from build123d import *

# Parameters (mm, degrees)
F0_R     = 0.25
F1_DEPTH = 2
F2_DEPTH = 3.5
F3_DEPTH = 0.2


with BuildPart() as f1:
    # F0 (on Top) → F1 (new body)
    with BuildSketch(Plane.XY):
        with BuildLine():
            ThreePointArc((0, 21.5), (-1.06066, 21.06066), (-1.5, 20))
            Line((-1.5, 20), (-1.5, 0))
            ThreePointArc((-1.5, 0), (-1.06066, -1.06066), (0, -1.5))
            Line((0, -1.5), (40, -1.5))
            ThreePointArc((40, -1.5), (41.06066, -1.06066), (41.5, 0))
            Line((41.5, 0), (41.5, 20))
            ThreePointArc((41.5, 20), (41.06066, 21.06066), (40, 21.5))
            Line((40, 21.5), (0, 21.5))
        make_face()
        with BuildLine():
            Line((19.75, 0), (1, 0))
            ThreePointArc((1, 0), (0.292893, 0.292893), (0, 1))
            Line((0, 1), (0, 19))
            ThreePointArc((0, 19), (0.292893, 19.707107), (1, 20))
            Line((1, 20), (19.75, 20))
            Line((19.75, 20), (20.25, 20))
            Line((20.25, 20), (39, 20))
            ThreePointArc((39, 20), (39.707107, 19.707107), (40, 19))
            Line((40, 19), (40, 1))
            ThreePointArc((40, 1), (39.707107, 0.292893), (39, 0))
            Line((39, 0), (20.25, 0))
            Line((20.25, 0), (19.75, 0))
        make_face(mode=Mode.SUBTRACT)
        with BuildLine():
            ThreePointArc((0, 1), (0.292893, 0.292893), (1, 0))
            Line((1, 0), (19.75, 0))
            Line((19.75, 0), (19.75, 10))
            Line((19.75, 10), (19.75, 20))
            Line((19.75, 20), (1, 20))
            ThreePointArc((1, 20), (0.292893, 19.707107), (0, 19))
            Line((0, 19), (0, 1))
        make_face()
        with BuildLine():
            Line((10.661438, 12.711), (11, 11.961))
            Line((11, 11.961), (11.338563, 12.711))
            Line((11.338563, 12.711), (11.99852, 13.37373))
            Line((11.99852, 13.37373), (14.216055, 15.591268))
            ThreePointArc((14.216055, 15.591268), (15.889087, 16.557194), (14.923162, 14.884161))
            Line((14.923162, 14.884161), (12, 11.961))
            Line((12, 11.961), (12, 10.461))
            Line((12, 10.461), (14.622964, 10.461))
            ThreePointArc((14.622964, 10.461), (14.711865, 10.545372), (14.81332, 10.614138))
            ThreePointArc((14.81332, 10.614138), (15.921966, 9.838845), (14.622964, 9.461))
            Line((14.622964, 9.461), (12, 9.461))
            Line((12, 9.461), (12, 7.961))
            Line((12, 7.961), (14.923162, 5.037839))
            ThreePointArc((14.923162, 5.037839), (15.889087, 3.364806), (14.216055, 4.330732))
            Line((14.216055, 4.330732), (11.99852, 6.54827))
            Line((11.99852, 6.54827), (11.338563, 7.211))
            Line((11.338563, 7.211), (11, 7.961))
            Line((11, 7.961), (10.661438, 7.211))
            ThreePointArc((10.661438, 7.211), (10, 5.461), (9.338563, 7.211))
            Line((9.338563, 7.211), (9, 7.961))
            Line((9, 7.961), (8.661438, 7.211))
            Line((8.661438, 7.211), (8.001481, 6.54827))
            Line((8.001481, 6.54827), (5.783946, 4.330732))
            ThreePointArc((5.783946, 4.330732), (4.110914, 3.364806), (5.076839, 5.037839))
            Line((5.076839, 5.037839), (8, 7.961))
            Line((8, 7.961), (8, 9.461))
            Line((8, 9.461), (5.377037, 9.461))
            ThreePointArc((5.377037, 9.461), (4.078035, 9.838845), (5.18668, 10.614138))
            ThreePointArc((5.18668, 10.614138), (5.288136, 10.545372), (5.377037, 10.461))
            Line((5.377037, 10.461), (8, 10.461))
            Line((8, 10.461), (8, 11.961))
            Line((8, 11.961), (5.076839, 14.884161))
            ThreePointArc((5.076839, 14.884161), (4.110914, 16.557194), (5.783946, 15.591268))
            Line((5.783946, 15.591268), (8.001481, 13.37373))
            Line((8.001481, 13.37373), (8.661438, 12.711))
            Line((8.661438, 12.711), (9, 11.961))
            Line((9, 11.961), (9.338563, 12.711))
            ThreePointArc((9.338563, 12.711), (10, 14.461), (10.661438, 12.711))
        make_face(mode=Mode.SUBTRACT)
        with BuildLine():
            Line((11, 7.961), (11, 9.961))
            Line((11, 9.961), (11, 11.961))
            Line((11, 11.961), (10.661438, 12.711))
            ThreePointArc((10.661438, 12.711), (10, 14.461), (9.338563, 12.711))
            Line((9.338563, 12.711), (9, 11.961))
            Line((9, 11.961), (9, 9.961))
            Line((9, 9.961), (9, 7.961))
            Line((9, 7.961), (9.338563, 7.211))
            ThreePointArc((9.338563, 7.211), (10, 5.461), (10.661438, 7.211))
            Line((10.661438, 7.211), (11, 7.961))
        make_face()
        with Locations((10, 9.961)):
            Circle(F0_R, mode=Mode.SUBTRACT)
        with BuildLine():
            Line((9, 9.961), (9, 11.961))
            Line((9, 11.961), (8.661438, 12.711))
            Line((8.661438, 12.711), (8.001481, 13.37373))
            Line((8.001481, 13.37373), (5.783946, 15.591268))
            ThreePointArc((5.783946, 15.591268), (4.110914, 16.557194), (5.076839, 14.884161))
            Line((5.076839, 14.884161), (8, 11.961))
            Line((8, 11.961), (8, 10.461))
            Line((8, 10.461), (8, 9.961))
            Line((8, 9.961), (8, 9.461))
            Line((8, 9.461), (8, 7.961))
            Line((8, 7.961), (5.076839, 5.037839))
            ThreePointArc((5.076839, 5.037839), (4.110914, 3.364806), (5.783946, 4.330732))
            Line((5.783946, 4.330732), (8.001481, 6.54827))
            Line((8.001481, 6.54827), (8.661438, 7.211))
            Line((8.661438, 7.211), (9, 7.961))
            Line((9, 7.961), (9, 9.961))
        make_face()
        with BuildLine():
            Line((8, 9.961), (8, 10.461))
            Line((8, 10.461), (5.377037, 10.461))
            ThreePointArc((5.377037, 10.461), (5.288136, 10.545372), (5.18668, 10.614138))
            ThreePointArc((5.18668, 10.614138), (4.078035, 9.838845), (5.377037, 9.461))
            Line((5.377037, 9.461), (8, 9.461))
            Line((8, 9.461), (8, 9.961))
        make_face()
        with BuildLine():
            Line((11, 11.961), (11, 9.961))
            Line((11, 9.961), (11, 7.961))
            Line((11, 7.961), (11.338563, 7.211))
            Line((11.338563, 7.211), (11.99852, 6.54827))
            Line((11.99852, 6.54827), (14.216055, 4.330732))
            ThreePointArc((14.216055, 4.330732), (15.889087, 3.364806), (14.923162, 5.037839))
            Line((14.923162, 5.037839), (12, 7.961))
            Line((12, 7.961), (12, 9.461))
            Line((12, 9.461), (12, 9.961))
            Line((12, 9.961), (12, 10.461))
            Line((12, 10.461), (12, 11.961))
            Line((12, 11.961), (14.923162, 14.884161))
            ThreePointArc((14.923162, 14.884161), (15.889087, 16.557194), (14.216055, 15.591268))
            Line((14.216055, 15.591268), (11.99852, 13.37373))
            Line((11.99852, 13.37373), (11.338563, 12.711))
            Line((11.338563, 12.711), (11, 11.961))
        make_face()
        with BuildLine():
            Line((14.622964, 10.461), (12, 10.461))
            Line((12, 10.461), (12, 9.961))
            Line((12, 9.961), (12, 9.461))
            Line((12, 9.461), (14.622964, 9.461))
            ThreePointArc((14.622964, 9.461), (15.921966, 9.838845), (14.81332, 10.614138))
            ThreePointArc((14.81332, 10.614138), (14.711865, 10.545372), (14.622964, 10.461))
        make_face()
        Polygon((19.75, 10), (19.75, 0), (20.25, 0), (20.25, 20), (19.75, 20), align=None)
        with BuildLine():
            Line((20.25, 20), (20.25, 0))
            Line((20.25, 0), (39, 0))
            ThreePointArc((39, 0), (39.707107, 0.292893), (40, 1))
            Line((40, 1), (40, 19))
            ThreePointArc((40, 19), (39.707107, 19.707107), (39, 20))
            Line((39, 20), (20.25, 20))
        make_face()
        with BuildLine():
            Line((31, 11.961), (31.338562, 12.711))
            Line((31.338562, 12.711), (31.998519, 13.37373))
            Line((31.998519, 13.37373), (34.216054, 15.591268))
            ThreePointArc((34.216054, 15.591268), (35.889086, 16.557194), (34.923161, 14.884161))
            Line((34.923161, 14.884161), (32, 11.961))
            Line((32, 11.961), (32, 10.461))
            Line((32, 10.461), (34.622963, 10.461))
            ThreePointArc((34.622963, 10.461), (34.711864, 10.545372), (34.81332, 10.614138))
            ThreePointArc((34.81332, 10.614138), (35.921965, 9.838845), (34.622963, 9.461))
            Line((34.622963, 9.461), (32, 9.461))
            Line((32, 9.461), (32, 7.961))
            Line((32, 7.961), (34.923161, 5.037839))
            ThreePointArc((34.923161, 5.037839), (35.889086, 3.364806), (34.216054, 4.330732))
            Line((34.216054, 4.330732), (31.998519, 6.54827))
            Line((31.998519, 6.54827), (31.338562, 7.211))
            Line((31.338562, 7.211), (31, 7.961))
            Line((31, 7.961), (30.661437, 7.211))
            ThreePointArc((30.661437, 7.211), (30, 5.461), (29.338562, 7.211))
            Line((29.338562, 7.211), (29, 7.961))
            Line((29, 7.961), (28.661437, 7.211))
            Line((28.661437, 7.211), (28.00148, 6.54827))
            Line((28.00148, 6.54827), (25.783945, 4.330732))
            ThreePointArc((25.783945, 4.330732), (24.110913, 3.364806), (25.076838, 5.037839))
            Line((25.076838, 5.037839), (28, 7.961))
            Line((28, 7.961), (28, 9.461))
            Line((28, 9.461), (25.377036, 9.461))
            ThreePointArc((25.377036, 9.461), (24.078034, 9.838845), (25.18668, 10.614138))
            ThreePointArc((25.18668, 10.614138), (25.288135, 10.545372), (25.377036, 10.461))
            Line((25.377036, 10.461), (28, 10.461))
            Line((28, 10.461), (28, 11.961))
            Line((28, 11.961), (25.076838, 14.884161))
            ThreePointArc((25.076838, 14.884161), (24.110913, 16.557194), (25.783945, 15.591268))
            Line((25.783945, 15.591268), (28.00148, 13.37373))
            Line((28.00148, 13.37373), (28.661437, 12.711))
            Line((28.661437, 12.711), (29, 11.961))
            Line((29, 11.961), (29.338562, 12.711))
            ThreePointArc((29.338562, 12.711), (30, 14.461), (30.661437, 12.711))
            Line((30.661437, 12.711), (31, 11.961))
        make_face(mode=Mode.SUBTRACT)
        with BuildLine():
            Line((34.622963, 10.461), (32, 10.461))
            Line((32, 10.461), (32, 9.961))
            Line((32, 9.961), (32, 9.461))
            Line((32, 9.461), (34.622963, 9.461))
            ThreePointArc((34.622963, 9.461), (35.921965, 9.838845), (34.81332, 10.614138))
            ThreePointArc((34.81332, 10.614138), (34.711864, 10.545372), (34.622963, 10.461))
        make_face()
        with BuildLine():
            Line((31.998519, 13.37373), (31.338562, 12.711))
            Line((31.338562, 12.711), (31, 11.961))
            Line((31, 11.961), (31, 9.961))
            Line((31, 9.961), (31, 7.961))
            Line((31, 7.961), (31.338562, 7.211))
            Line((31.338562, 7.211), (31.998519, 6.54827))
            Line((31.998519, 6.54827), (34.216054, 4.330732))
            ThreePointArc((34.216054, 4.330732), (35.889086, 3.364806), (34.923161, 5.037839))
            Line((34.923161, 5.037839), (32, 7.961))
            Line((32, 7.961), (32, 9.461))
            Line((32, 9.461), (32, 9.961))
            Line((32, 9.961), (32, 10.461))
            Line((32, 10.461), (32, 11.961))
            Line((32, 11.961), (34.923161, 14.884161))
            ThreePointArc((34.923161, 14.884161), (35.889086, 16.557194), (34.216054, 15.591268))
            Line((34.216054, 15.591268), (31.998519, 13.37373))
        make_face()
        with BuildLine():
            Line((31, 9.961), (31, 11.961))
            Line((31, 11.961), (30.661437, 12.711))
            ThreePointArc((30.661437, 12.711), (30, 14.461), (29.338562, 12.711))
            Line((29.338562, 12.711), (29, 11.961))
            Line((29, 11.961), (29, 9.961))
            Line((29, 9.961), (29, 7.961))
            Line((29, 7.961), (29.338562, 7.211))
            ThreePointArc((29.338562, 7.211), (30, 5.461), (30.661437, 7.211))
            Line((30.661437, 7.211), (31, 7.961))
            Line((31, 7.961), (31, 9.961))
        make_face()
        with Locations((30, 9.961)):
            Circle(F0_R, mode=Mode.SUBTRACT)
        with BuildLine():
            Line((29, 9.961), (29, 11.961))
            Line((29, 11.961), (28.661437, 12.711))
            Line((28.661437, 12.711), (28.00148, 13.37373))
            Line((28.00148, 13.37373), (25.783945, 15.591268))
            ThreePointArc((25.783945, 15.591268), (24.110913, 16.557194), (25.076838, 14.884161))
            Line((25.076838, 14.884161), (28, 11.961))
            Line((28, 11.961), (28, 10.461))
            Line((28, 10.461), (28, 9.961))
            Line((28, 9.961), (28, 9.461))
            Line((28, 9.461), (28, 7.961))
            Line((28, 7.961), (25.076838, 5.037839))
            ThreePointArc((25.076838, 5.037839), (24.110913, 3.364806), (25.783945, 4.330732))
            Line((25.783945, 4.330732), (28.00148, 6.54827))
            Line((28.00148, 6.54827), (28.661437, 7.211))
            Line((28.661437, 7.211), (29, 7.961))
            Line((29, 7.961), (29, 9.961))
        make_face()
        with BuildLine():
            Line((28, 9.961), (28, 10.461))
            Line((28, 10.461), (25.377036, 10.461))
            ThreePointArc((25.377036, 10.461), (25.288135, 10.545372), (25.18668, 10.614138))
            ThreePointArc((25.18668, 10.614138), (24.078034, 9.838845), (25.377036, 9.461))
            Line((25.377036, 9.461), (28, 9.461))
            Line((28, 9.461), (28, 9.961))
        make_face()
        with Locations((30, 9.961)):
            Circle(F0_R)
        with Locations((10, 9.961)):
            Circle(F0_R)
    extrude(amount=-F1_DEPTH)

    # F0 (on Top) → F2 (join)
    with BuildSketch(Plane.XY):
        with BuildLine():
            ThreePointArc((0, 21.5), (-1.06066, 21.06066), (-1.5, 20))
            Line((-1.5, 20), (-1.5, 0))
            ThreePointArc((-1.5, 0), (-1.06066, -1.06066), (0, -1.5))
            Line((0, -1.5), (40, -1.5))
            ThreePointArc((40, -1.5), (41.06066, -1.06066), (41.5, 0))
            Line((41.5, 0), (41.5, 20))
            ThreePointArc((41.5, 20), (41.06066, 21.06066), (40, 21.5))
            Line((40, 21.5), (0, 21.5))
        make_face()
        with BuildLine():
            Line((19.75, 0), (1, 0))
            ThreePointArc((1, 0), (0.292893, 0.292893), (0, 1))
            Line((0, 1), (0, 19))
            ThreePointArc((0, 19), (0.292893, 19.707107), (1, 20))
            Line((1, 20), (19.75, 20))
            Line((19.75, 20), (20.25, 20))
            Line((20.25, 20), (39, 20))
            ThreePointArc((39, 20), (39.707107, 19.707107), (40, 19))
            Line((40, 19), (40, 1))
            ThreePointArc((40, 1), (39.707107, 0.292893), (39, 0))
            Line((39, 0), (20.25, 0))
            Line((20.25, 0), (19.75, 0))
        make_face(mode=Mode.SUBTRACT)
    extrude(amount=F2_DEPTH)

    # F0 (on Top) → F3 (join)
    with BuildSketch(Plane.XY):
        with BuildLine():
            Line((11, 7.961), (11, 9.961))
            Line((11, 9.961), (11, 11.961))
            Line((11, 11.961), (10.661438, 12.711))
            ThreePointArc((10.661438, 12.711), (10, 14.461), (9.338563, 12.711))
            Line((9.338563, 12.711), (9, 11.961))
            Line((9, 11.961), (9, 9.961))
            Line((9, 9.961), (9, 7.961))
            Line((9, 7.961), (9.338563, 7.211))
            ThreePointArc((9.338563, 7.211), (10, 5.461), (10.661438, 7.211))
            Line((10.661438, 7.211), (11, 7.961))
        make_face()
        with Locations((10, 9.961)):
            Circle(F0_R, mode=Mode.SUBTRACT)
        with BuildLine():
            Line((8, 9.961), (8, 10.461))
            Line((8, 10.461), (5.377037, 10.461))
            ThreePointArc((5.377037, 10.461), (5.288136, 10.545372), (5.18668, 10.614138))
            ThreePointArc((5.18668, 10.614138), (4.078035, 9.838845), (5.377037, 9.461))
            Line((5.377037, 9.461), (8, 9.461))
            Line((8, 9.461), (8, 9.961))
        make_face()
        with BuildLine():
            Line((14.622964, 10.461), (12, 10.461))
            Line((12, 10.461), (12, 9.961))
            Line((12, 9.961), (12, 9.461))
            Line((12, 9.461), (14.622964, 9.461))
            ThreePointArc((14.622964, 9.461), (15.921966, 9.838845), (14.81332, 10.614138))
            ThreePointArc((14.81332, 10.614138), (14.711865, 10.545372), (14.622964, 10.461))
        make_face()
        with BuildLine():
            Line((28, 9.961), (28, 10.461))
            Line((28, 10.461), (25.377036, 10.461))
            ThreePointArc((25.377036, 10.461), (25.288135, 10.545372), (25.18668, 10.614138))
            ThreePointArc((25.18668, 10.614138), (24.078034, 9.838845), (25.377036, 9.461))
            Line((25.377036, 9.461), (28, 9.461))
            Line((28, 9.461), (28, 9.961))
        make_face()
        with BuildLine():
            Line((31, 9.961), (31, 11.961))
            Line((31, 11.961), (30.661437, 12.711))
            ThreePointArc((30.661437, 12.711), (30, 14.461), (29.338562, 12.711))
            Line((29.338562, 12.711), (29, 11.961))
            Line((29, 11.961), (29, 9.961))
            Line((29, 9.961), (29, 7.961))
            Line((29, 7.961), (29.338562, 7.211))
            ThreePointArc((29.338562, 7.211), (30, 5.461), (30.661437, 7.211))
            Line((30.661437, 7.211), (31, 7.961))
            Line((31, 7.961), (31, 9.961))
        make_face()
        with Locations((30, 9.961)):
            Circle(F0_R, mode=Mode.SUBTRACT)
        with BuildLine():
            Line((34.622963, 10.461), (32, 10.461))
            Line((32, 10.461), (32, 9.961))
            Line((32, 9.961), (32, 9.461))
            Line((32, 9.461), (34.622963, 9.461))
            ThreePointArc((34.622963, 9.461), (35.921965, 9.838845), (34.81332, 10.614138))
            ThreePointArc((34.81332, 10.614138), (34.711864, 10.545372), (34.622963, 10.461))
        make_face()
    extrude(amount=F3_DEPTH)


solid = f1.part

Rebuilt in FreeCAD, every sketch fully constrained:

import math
import FreeCAD as App
import Part
import Sketcher

doc = App.newDocument("Part")
body = doc.addObject("PartDesign::Body", "Body")

# Sketch on XY plane
sketch1 = body.newObject("Sketcher::SketchObject", "Sketch")
sketch1.AttachmentSupport = (doc.getObject("XY_Plane"), [""])
sketch1.MapMode = "FlatFace"
sketch1.addGeometry([
    Part.ArcOfCircle(Part.Circle(App.Vector(0.000001, 19.999999, 0), App.Vector(0, 0, 1), 1.500001), math.radians(90.000022), math.radians(179.999978)),  # 0
    Part.LineSegment(App.Vector(-1.5, 20, 0), App.Vector(-1.5, 0, 0)),  # 1
    Part.ArcOfCircle(Part.Circle(App.Vector(0.000001, 0.000001, 0), App.Vector(0, 0, 1), 1.500001), math.radians(-179.999978), math.radians(-90.000022)),  # 2
    Part.LineSegment(App.Vector(0, -1.5, 0), App.Vector(40, -1.5, 0)),  # 3
    Part.ArcOfCircle(Part.Circle(App.Vector(39.999999, 0.000001, 0), App.Vector(0, 0, 1), 1.500001), math.radians(-89.999978), math.radians(-0.000022)),  # 4
    Part.LineSegment(App.Vector(41.5, 0, 0), App.Vector(41.5, 20, 0)),  # 5
    Part.ArcOfCircle(Part.Circle(App.Vector(39.999999, 19.999999, 0), App.Vector(0, 0, 1), 1.500001), math.radians(0.000022), math.radians(89.999978)),  # 6
    Part.LineSegment(App.Vector(40, 21.5, 0), App.Vector(0, 21.5, 0)),  # 7
], False)
sketch1.addConstraint([
    Sketcher.Constraint("Tangent", 0, 2, 1, 1),
    Sketcher.Constraint("Tangent", 1, 2, 2, 1),
    Sketcher.Constraint("Tangent", 2, 2, 3, 1),
    Sketcher.Constraint("Tangent", 3, 2, 4, 1),
    Sketcher.Constraint("Tangent", 4, 2, 5, 1),
    Sketcher.Constraint("Tangent", 5, 2, 6, 1),
    Sketcher.Constraint("Tangent", 6, 2, 7, 1),
    Sketcher.Constraint("Tangent", 7, 2, 0, 1),
    Sketcher.Constraint("Vertical", 1),
    Sketcher.Constraint("Horizontal", 3),
    Sketcher.Constraint("Vertical", 5),
    Sketcher.Constraint("Horizontal", 7),
    Sketcher.Constraint("Coincident", 2, 3, -1, 1),
    Sketcher.Constraint("Equal", 0, 2),
    Sketcher.Constraint("Equal", 2, 4),
    Sketcher.Constraint("Equal", 4, 6),
    Sketcher.Constraint("Radius", 0, 1.500001),
    Sketcher.Constraint("DistanceX", 3, 1, 3, 2, 40.0),
    Sketcher.Constraint("DistanceY", 1, 2, 1, 1, 20.0),
])
pad1 = body.newObject("PartDesign::Pad", "Pad")
pad1.Profile = sketch1
pad1.Length = 2
pad1.Reversed = True

# Sketch on XY plane
sketch2 = body.newObject("Sketcher::SketchObject", "Sketch001")
sketch2.AttachmentSupport = (doc.getObject("XY_Plane"), [""])
sketch2.MapMode = "FlatFace"
sketch2.addGeometry([
    Part.ArcOfCircle(Part.Circle(App.Vector(0.000001, 19.999999, 0), App.Vector(0, 0, 1), 1.500001), math.radians(90.000022), math.radians(179.999978)),  # 0
    Part.LineSegment(App.Vector(-1.5, 20, 0), App.Vector(-1.5, 0, 0)),  # 1
    Part.ArcOfCircle(Part.Circle(App.Vector(0.000001, 0.000001, 0), App.Vector(0, 0, 1), 1.500001), math.radians(-179.999978), math.radians(-90.000022)),  # 2
    Part.LineSegment(App.Vector(0, -1.5, 0), App.Vector(40, -1.5, 0)),  # 3
    Part.ArcOfCircle(Part.Circle(App.Vector(39.999999, 0.000001, 0), App.Vector(0, 0, 1), 1.500001), math.radians(-89.999978), math.radians(-0.000022)),  # 4
    Part.LineSegment(App.Vector(41.5, 0, 0), App.Vector(41.5, 20, 0)),  # 5
    Part.ArcOfCircle(Part.Circle(App.Vector(39.999999, 19.999999, 0), App.Vector(0, 0, 1), 1.500001), math.radians(0.000022), math.radians(89.999978)),  # 6
    Part.LineSegment(App.Vector(40, 21.5, 0), App.Vector(0, 21.5, 0)),  # 7
    Part.LineSegment(App.Vector(39, 0, 0), App.Vector(1, 0, 0)),  # 8
    Part.ArcOfCircle(Part.Circle(App.Vector(0.999999, 0.999999, 0), App.Vector(0, 0, 1), 0.999999), math.radians(179.999957), math.radians(270.000043)),  # 9
    Part.LineSegment(App.Vector(0, 1, 0), App.Vector(0, 19, 0)),  # 10
    Part.ArcOfCircle(Part.Circle(App.Vector(0.999999, 19.000001, 0), App.Vector(0, 0, 1), 0.999999), math.radians(89.999957), math.radians(180.000043)),  # 11
    Part.LineSegment(App.Vector(1, 20, 0), App.Vector(39, 20, 0)),  # 12
    Part.ArcOfCircle(Part.Circle(App.Vector(39.000001, 19.000001, 0), App.Vector(0, 0, 1), 0.999999), math.radians(-0.000043), math.radians(90.000043)),  # 13
    Part.LineSegment(App.Vector(40, 19, 0), App.Vector(40, 1, 0)),  # 14
    Part.ArcOfCircle(Part.Circle(App.Vector(39.000001, 0.999999, 0), App.Vector(0, 0, 1), 0.999999), math.radians(-90.000043), math.radians(0.000043)),  # 15
], False)
sketch2.addConstraint([
    Sketcher.Constraint("Tangent", 0, 2, 1, 1),
    Sketcher.Constraint("Tangent", 1, 2, 2, 1),
    Sketcher.Constraint("Tangent", 2, 2, 3, 1),
    Sketcher.Constraint("Tangent", 3, 2, 4, 1),
    Sketcher.Constraint("Tangent", 4, 2, 5, 1),
    Sketcher.Constraint("Tangent", 5, 2, 6, 1),
    Sketcher.Constraint("Tangent", 6, 2, 7, 1),
    Sketcher.Constraint("Tangent", 7, 2, 0, 1),
    Sketcher.Constraint("Tangent", 8, 2, 9, 2),
    Sketcher.Constraint("Tangent", 9, 1, 10, 1),
    Sketcher.Constraint("Tangent", 10, 2, 11, 2),
    Sketcher.Constraint("Tangent", 11, 1, 12, 1),
    Sketcher.Constraint("Tangent", 12, 2, 13, 2),
    Sketcher.Constraint("Tangent", 13, 1, 14, 1),
    Sketcher.Constraint("Tangent", 14, 2, 15, 2),
    Sketcher.Constraint("Tangent", 15, 1, 8, 1),
    Sketcher.Constraint("Vertical", 1),
    Sketcher.Constraint("Horizontal", 3),
    Sketcher.Constraint("Vertical", 5),
    Sketcher.Constraint("Horizontal", 7),
    Sketcher.Constraint("Horizontal", 8),
    Sketcher.Constraint("Vertical", 10),
    Sketcher.Constraint("Horizontal", 12),
    Sketcher.Constraint("Vertical", 14),
    Sketcher.Constraint("Coincident", 2, 3, -1, 1),
    Sketcher.Constraint("Equal", 0, 2),
    Sketcher.Constraint("Equal", 2, 4),
    Sketcher.Constraint("Equal", 4, 6),
    Sketcher.Constraint("Equal", 9, 11),
    Sketcher.Constraint("Equal", 11, 13),
    Sketcher.Constraint("Equal", 13, 15),
    Sketcher.Constraint("PointOnObject", 8, 2, -1),
    Sketcher.Constraint("PointOnObject", 9, 1, -2),
    Sketcher.Constraint("Horizontal", 5, 2, 11, 1),
    Sketcher.Constraint("Vertical", 6, 2, 13, 1),
    Sketcher.Constraint("Radius", 9, 0.999999),
    Sketcher.Constraint("Radius", 0, 1.500001),
    Sketcher.Constraint("DistanceX", 3, 1, 3, 2, 40.0),
    Sketcher.Constraint("DistanceY", 1, 2, 1, 1, 20.0),
])
pad2 = body.newObject("PartDesign::Pad", "Pad001")
pad2.Profile = sketch2
pad2.Length = 3.5

# Sketch on XY plane
sketch3 = body.newObject("Sketcher::SketchObject", "Sketch002")
sketch3.AttachmentSupport = (doc.getObject("XY_Plane"), [""])
sketch3.MapMode = "FlatFace"
sketch3.addGeometry([
    Part.LineSegment(App.Vector(11, 7.961, 0), App.Vector(11, 11.961, 0)),  # 0
    Part.LineSegment(App.Vector(11, 11.961, 0), App.Vector(10.661438, 12.711, 0)),  # 1
    Part.ArcOfCircle(Part.Circle(App.Vector(10.000001, 13.461, 0), App.Vector(0, 0, 1), 1), math.radians(-48.590397), math.radians(228.590397)),  # 2
    Part.LineSegment(App.Vector(9.338563, 12.711, 0), App.Vector(9, 11.961, 0)),  # 3
    Part.LineSegment(App.Vector(9, 11.961, 0), App.Vector(9, 7.961, 0)),  # 4
    Part.LineSegment(App.Vector(9, 7.961, 0), App.Vector(9.338563, 7.211, 0)),  # 5
    Part.ArcOfCircle(Part.Circle(App.Vector(10.000001, 6.461, 0), App.Vector(0, 0, 1), 1), math.radians(131.409603), math.radians(408.590397)),  # 6
    Part.LineSegment(App.Vector(10.661438, 7.211, 0), App.Vector(11, 7.961, 0)),  # 7
    Part.Circle(App.Vector(10, 9.961, 0), App.Vector(0, 0, 1), 0.25),  # 8
    Part.LineSegment(App.Vector(8, 10.461, 0), App.Vector(5.377037, 10.461, 0)),  # 9
    Part.ArcOfCircle(Part.Circle(App.Vector(4.81802, 9.960998, 0), App.Vector(0, 0, 1), 0.750002), math.radians(41.810424), math.radians(60.557758)),  # 10
    Part.ArcOfCircle(Part.Circle(App.Vector(4.81802, 9.961, 0), App.Vector(0, 0, 1), 0.75), math.radians(60.557707), math.radians(318.189695)),  # 11
    Part.LineSegment(App.Vector(5.377037, 9.461, 0), App.Vector(8, 9.461, 0)),  # 12
    Part.LineSegment(App.Vector(8, 9.461, 0), App.Vector(8, 10.461, 0)),  # 13
    Part.LineSegment(App.Vector(14.622964, 10.461, 0), App.Vector(12, 10.461, 0)),  # 14
    Part.LineSegment(App.Vector(12, 10.461, 0), App.Vector(12, 9.461, 0)),  # 15
    Part.LineSegment(App.Vector(12, 9.461, 0), App.Vector(14.622964, 9.461, 0)),  # 16
    Part.ArcOfCircle(Part.Circle(App.Vector(15.181981, 9.961, 0), App.Vector(0, 0, 1), 0.75), math.radians(-138.189671), math.radians(119.442365)),  # 17
    Part.ArcOfCircle(Part.Circle(App.Vector(15.181994, 9.960984, 0), App.Vector(0, 0, 1), 0.75002), math.radians(119.442651), math.radians(138.18946)),  # 18
    Part.LineSegment(App.Vector(28, 10.461, 0), App.Vector(25.377036, 10.461, 0)),  # 19
    Part.ArcOfCircle(Part.Circle(App.Vector(24.818006, 9.960984, 0), App.Vector(0, 0, 1), 0.75002), math.radians(41.81054), math.radians(60.557349)),  # 20
    Part.ArcOfCircle(Part.Circle(App.Vector(24.818019, 9.961, 0), App.Vector(0, 0, 1), 0.75), math.radians(60.557635), math.radians(318.189671)),  # 21
    Part.LineSegment(App.Vector(25.377036, 9.461, 0), App.Vector(28, 9.461, 0)),  # 22
    Part.LineSegment(App.Vector(28, 9.461, 0), App.Vector(28, 10.461, 0)),  # 23
    Part.LineSegment(App.Vector(31, 11.961, 0), App.Vector(30.661437, 12.711, 0)),  # 24
    Part.ArcOfCircle(Part.Circle(App.Vector(30, 13.461, 0), App.Vector(0, 0, 1), 1), math.radians(-48.590397), math.radians(228.590397)),  # 25
    Part.LineSegment(App.Vector(29.338562, 12.711, 0), App.Vector(29, 11.961, 0)),  # 26
    Part.LineSegment(App.Vector(29, 11.961, 0), App.Vector(29, 7.961, 0)),  # 27
    Part.LineSegment(App.Vector(29, 7.961, 0), App.Vector(29.338562, 7.211, 0)),  # 28
    Part.ArcOfCircle(Part.Circle(App.Vector(30, 6.461, 0), App.Vector(0, 0, 1), 1), math.radians(131.409603), math.radians(408.590397)),  # 29
    Part.LineSegment(App.Vector(30.661437, 7.211, 0), App.Vector(31, 7.961, 0)),  # 30
    Part.LineSegment(App.Vector(31, 7.961, 0), App.Vector(31, 11.961, 0)),  # 31
    Part.Circle(App.Vector(30, 9.961, 0), App.Vector(0, 0, 1), 0.25),  # 32
    Part.LineSegment(App.Vector(34.622963, 10.461, 0), App.Vector(32, 10.461, 0)),  # 33
    Part.LineSegment(App.Vector(32, 10.461, 0), App.Vector(32, 9.461, 0)),  # 34
    Part.LineSegment(App.Vector(32, 9.461, 0), App.Vector(34.622963, 9.461, 0)),  # 35
    Part.ArcOfCircle(Part.Circle(App.Vector(35.18198, 9.961, 0), App.Vector(0, 0, 1), 0.75), math.radians(-138.189695), math.radians(119.442293)),  # 36
    Part.ArcOfCircle(Part.Circle(App.Vector(35.18198, 9.960998, 0), App.Vector(0, 0, 1), 0.750002), math.radians(119.442242), math.radians(138.189576)),  # 37
], False)
sketch3.addConstraint([
    Sketcher.Constraint("Coincident", 0, 2, 1, 1),
    Sketcher.Constraint("Coincident", 1, 2, 2, 1),
    Sketcher.Constraint("Coincident", 2, 2, 3, 1),
    Sketcher.Constraint("Coincident", 3, 2, 4, 1),
    Sketcher.Constraint("Coincident", 4, 2, 5, 1),
    Sketcher.Constraint("Coincident", 5, 2, 6, 1),
    Sketcher.Constraint("Coincident", 6, 2, 7, 1),
    Sketcher.Constraint("Coincident", 7, 2, 0, 1),
    Sketcher.Constraint("Coincident", 9, 2, 10, 1),
    Sketcher.Constraint("Tangent", 10, 2, 11, 1),
    Sketcher.Constraint("Coincident", 11, 2, 12, 1),
    Sketcher.Constraint("Coincident", 12, 2, 13, 1),
    Sketcher.Constraint("Coincident", 13, 2, 9, 1),
    Sketcher.Constraint("Coincident", 14, 2, 15, 1),
    Sketcher.Constraint("Coincident", 15, 2, 16, 1),
    Sketcher.Constraint("Coincident", 16, 2, 17, 1),
    Sketcher.Constraint("Coincident", 17, 2, 18, 1),
    Sketcher.Constraint("Coincident", 18, 2, 14, 1),
    Sketcher.Constraint("Coincident", 19, 2, 20, 1),
    Sketcher.Constraint("Coincident", 20, 2, 21, 1),
    Sketcher.Constraint("Coincident", 21, 2, 22, 1),
    Sketcher.Constraint("Coincident", 22, 2, 23, 1),
    Sketcher.Constraint("Coincident", 23, 2, 19, 1),
    Sketcher.Constraint("Coincident", 24, 2, 25, 1),
    Sketcher.Constraint("Coincident", 25, 2, 26, 1),
    Sketcher.Constraint("Coincident", 26, 2, 27, 1),
    Sketcher.Constraint("Coincident", 27, 2, 28, 1),
    Sketcher.Constraint("Coincident", 28, 2, 29, 1),
    Sketcher.Constraint("Coincident", 29, 2, 30, 1),
    Sketcher.Constraint("Coincident", 30, 2, 31, 1),
    Sketcher.Constraint("Coincident", 31, 2, 24, 1),
    Sketcher.Constraint("Coincident", 33, 2, 34, 1),
    Sketcher.Constraint("Coincident", 34, 2, 35, 1),
    Sketcher.Constraint("Coincident", 35, 2, 36, 1),
    Sketcher.Constraint("Tangent", 36, 2, 37, 1),
    Sketcher.Constraint("Coincident", 37, 2, 33, 1),
    Sketcher.Constraint("Vertical", 0),
    Sketcher.Constraint("Vertical", 4),
    Sketcher.Constraint("Horizontal", 9),
    Sketcher.Constraint("Horizontal", 12),
    Sketcher.Constraint("Vertical", 13),
    Sketcher.Constraint("Horizontal", 14),
    Sketcher.Constraint("Vertical", 15),
    Sketcher.Constraint("Horizontal", 16),
    Sketcher.Constraint("Horizontal", 19),
    Sketcher.Constraint("Horizontal", 22),
    Sketcher.Constraint("Vertical", 23),
    Sketcher.Constraint("Vertical", 27),
    Sketcher.Constraint("Vertical", 31),
    Sketcher.Constraint("Horizontal", 33),
    Sketcher.Constraint("Vertical", 34),
    Sketcher.Constraint("Horizontal", 35),
    Sketcher.Constraint("Equal", 2, 6),
    Sketcher.Constraint("Equal", 10, 11),
    Sketcher.Constraint("Equal", 11, 17),
    Sketcher.Constraint("Equal", 18, 20),
    Sketcher.Constraint("Equal", 17, 21),
    Sketcher.Constraint("Equal", 6, 25),
    Sketcher.Constraint("Equal", 25, 29),
    Sketcher.Constraint("Equal", 8, 32),
    Sketcher.Constraint("Equal", 21, 36),
    Sketcher.Constraint("Equal", 36, 37),
    Sketcher.Constraint("Parallel", 1, 5),
    Sketcher.Constraint("Parallel", 3, 7),
    Sketcher.Constraint("Parallel", 5, 24),
    Sketcher.Constraint("Parallel", 7, 26),
    Sketcher.Constraint("Parallel", 24, 28),
    Sketcher.Constraint("Parallel", 26, 30),
    Sketcher.Constraint("Horizontal", 8, 3, 11, 3),
    Sketcher.Constraint("Horizontal", 11, 3, 17, 3),
    Sketcher.Constraint("Horizontal", 18, 3, 20, 3),
    Sketcher.Constraint("Horizontal", 17, 3, 21, 3),
    Sketcher.Constraint("Horizontal", 2, 3, 25, 3),
    Sketcher.Constraint("Horizontal", 6, 3, 29, 3),
    Sketcher.Constraint("Horizontal", 21, 3, 32, 3),
    Sketcher.Constraint("Horizontal", 32, 3, 36, 3),
    Sketcher.Constraint("Horizontal", 1, 2, 2, 2),
    Sketcher.Constraint("Horizontal", 0, 2, 3, 2),
    Sketcher.Constraint("Horizontal", 5, 2, 6, 2),
    Sketcher.Constraint("Horizontal", 4, 2, 7, 2),
    Sketcher.Constraint("Horizontal", 13, 2, 14, 2),
    Sketcher.Constraint("Horizontal", 12, 2, 15, 2),
    Sketcher.Constraint("Horizontal", 10, 2, 17, 2),
    Sketcher.Constraint("Horizontal", 18, 2, 19, 2),
    Sketcher.Constraint("Horizontal", 17, 2, 20, 2),
    Sketcher.Constraint("Horizontal", 16, 2, 21, 2),
    Sketcher.Constraint("Horizontal", 2, 2, 24, 2),
    Sketcher.Constraint("Horizontal", 24, 2, 25, 2),
    Sketcher.Constraint("Horizontal", 3, 2, 26, 2),
    Sketcher.Constraint("Horizontal", 7, 2, 27, 2),
    Sketcher.Constraint("Horizontal", 6, 2, 28, 2),
    Sketcher.Constraint("Horizontal", 28, 2, 29, 2),
    Sketcher.Constraint("Horizontal", 27, 2, 30, 2),
    Sketcher.Constraint("Horizontal", 23, 2, 33, 2),
    Sketcher.Constraint("Horizontal", 22, 2, 34, 2),
    Sketcher.Constraint("Horizontal", 20, 2, 36, 2),
    Sketcher.Constraint("Vertical", 2, 3, 6, 3),
    Sketcher.Constraint("Vertical", 6, 3, 8, 3),
    Sketcher.Constraint("Vertical", 29, 3, 32, 3),
    Sketcher.Constraint("Vertical", 2, 2, 5, 2),
    Sketcher.Constraint("Vertical", 9, 2, 11, 2),
    Sketcher.Constraint("Vertical", 16, 2, 18, 2),
    Sketcher.Constraint("Equal", 12, 14),
    Sketcher.Constraint("Equal", 16, 19),
    Sketcher.Constraint("Equal", 22, 33),
    Sketcher.Constraint("Radius", 2, 1.0),
    Sketcher.Constraint("Diameter", 8, 0.5),
    Sketcher.Constraint("DistanceY", 0, 1, 0, 2, 4.0),
    Sketcher.Constraint("DistanceY", 13, 1, 13, 2, 1.0),
    Sketcher.Constraint("Radius", 10, 0.750002),
    Sketcher.Constraint("DistanceX", -1, 1, 2, 3, 10.000001),
    Sketcher.Constraint("DistanceX", -1, 1, 25, 3, 30.0),
    Sketcher.Constraint("DistanceX", -1, 1, 0, 2, 11.0),
    Sketcher.Constraint("DistanceX", -1, 1, 12, 2, 8.0),
    Sketcher.Constraint("DistanceX", -1, 1, 14, 2, 12.0),
    Sketcher.Constraint("DistanceX", -1, 1, 22, 2, 28.0),
    Sketcher.Constraint("DistanceX", -1, 1, 33, 2, 32.0),
    Sketcher.Constraint("DistanceY", 6, 3, 2, 3, 7.0),
    Sketcher.Constraint("DistanceY", 8, 3, 0, 2, 2.0),
    Sketcher.Constraint("Radius", 18, 0.75002),
    Sketcher.Constraint("DistanceY", 0, 2, 1, 2, 0.75),
    Sketcher.Constraint("DistanceY", -1, 1, 2, 3, 13.461),
    Sketcher.Constraint("DistanceX", 9, 2, 9, 1, 2.622963),
    Sketcher.Constraint("DistanceX", -1, 1, 10, 2, 5.18668),
])
pad3 = body.newObject("PartDesign::Pad", "Pad002")
pad3.Profile = sketch3
pad3.Length = 0.2

doc.recompute()
